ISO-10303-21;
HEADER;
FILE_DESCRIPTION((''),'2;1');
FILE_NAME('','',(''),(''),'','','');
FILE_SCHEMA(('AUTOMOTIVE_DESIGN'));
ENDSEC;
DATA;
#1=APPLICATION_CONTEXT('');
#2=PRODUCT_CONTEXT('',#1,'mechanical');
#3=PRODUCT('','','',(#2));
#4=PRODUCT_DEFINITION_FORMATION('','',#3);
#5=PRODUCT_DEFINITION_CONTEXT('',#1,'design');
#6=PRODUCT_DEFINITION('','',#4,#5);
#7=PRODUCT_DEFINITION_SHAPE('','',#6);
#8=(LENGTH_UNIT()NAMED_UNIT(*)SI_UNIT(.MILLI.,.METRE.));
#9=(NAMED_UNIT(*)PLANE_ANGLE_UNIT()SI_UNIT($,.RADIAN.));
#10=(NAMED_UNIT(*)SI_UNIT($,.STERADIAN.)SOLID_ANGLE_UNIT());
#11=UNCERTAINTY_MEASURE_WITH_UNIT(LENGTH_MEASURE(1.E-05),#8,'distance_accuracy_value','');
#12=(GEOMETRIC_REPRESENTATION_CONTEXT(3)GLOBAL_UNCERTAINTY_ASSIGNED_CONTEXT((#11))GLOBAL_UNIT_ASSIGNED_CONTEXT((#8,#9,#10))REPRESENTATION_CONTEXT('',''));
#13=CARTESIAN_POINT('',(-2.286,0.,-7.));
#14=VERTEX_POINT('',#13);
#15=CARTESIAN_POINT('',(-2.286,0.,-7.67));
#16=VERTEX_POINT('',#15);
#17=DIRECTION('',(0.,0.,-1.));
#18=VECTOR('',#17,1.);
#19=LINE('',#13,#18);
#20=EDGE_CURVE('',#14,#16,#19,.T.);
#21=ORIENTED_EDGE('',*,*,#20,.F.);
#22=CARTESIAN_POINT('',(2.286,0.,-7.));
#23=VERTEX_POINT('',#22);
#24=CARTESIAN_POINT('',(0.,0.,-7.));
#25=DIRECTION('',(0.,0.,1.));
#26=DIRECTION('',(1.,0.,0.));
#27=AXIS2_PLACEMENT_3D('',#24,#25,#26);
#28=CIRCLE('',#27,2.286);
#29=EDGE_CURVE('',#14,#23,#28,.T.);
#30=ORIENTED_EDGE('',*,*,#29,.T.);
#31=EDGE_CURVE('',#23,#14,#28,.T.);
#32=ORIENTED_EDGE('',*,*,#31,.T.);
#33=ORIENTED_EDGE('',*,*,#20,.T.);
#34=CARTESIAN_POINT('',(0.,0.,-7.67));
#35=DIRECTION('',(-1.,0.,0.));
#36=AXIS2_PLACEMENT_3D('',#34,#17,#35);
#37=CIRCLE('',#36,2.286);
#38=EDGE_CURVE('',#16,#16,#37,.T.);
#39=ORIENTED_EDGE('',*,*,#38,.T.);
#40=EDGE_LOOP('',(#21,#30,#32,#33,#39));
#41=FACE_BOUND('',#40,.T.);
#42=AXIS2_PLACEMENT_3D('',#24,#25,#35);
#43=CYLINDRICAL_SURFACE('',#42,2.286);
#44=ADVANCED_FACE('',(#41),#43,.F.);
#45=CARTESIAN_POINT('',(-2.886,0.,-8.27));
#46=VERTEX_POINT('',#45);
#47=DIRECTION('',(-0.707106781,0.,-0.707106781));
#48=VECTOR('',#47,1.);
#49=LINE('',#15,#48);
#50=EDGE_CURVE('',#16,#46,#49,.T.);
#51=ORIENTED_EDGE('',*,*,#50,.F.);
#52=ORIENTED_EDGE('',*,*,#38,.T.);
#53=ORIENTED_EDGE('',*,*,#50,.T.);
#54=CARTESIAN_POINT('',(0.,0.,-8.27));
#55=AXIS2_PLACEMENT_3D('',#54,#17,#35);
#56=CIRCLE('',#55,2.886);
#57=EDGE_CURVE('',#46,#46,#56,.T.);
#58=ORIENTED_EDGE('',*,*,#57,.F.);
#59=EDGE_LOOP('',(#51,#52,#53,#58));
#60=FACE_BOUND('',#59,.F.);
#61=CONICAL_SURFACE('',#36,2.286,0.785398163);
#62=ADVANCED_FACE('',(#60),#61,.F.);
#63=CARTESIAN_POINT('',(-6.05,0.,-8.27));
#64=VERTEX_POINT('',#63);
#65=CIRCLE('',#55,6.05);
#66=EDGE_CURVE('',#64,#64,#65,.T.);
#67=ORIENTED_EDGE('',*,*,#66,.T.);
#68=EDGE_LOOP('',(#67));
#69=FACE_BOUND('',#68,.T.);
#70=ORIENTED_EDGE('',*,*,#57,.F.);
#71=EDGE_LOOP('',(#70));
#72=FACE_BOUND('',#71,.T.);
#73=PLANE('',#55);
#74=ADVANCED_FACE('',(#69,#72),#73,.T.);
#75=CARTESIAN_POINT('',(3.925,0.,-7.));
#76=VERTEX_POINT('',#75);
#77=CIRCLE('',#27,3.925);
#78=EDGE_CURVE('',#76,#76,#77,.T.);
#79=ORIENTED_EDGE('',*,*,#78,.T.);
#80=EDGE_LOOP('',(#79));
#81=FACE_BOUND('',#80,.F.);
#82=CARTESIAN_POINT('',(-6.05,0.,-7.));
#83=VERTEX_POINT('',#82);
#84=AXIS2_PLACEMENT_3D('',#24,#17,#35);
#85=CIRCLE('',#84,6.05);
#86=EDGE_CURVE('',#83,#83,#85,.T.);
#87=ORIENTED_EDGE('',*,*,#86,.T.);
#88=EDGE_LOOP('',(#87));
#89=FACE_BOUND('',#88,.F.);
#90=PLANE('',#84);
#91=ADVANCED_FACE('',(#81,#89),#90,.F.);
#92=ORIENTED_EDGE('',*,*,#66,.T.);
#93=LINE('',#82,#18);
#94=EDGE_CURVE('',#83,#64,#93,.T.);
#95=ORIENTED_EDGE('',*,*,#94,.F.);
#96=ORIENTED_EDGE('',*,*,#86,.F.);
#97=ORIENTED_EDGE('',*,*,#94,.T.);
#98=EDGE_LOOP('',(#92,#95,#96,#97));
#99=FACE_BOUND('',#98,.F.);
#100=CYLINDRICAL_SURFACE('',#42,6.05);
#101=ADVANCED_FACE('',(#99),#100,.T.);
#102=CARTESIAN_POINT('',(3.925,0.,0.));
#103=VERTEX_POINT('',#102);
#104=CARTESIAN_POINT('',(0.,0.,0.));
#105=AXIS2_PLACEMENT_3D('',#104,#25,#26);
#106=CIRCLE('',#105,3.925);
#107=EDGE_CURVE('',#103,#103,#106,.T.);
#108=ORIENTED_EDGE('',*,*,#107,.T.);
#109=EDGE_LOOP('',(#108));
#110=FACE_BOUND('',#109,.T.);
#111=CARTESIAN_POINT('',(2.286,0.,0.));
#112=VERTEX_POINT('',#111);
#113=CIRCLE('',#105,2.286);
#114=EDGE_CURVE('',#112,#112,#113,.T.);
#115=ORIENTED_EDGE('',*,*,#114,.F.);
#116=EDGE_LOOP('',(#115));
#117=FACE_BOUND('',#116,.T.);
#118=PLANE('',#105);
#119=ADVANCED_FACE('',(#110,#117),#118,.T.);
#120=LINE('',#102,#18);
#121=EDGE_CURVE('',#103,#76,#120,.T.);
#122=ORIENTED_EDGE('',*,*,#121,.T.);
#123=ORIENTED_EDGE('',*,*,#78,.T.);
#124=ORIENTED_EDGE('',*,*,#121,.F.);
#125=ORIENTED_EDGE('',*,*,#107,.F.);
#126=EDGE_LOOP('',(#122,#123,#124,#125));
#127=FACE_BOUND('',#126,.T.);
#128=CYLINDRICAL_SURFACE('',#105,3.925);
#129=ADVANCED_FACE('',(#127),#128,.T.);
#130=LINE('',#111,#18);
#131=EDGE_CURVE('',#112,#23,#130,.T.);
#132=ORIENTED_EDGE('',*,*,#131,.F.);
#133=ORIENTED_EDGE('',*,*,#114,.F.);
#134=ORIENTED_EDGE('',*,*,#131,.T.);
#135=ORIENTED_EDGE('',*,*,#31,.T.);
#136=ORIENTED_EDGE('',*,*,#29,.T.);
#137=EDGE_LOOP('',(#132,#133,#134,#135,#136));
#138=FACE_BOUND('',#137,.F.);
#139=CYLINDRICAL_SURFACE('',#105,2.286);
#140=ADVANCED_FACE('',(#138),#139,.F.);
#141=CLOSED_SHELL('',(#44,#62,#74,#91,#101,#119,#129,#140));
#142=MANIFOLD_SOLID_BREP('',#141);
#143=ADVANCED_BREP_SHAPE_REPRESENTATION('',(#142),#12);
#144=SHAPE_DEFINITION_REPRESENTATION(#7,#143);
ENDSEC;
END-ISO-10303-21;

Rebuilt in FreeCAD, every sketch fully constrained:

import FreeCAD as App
import Part
import Sketcher

V = App.Vector
Q = App.Units.Quantity


def edges_at(feature, points):
    """Names of the edges that pass closest to the given points."""
    edges = feature.Shape.Edges
    near = lambda p: min(range(len(edges)), key=lambda i: edges[i].distToShape(Part.Vertex(*p))[0])
    return sorted({f"Edge{near(p) + 1}" for p in points})

doc = App.newDocument("Part")
body = doc.addObject("PartDesign::Body", "Body")

sketch1 = doc.addObject("Sketcher::SketchObject", "Sketch")
body.addObject(sketch1)
sketch1.AttachmentSupport = (doc.XY_Plane, [""])
sketch1.MapMode = "FlatFace"
sketch1.addGeometry(Part.Circle(V(0, 0, 0), V(0, 0, 1), 3.9), False)
sketch1.addGeometry(Part.Circle(V(0, 0, 0), V(0, 0, 1), 2.3), False)
sketch1.addConstraint(Sketcher.Constraint("Coincident", 0, 3, -1, 1))
sketch1.addConstraint(Sketcher.Constraint("Coincident", 1, 3, -1, 1))
sketch1.addConstraint(Sketcher.Constraint("Diameter", 0, Q("7.85 mm")))
sketch1.addConstraint(Sketcher.Constraint("Diameter", 1, Q("4.572 mm")))
pad1 = doc.addObject("PartDesign::Pad", "Pad")
body.addObject(pad1)
pad1.Profile = sketch1
pad1.Length = 7
pad1.Reversed = True

sketch2 = doc.addObject("Sketcher::SketchObject", "Sketch001")
body.addObject(sketch2)
sketch2.AttachmentSupport = (doc.XY_Plane, [""])
sketch2.MapMode = "FlatFace"
sketch2.AttachmentOffset = App.Placement(V(0, 0, -7), App.Rotation())
sketch2.addGeometry(Part.Circle(V(0, 0, 0), V(0, 0, 1), 6), False)
sketch2.addGeometry(Part.Circle(V(0, 0, 0), V(0, 0, 1), 2.3), False)
sketch2.addConstraint(Sketcher.Constraint("Coincident", 0, 3, -1, 1))
sketch2.addConstraint(Sketcher.Constraint("Coincident", 1, 3, -1, 1))
sketch2.addConstraint(Sketcher.Constraint("Diameter", 0, Q("12.1 mm")))
sketch2.addConstraint(Sketcher.Constraint("Diameter", 1, Q("4.572 mm")))
pad2 = doc.addObject("PartDesign::Pad", "Pad001")
body.addObject(pad2)
pad2.Profile = sketch2
pad2.Length = 1.27
pad2.Reversed = True
doc.recompute()

chamfer = doc.addObject("PartDesign::Chamfer", "Chamfer")
body.addObject(chamfer)
chamfer.Base = (pad2, edges_at(pad2, [(2.286, 0, -8.27)]))
chamfer.Size = 0.6

doc.recompute()
